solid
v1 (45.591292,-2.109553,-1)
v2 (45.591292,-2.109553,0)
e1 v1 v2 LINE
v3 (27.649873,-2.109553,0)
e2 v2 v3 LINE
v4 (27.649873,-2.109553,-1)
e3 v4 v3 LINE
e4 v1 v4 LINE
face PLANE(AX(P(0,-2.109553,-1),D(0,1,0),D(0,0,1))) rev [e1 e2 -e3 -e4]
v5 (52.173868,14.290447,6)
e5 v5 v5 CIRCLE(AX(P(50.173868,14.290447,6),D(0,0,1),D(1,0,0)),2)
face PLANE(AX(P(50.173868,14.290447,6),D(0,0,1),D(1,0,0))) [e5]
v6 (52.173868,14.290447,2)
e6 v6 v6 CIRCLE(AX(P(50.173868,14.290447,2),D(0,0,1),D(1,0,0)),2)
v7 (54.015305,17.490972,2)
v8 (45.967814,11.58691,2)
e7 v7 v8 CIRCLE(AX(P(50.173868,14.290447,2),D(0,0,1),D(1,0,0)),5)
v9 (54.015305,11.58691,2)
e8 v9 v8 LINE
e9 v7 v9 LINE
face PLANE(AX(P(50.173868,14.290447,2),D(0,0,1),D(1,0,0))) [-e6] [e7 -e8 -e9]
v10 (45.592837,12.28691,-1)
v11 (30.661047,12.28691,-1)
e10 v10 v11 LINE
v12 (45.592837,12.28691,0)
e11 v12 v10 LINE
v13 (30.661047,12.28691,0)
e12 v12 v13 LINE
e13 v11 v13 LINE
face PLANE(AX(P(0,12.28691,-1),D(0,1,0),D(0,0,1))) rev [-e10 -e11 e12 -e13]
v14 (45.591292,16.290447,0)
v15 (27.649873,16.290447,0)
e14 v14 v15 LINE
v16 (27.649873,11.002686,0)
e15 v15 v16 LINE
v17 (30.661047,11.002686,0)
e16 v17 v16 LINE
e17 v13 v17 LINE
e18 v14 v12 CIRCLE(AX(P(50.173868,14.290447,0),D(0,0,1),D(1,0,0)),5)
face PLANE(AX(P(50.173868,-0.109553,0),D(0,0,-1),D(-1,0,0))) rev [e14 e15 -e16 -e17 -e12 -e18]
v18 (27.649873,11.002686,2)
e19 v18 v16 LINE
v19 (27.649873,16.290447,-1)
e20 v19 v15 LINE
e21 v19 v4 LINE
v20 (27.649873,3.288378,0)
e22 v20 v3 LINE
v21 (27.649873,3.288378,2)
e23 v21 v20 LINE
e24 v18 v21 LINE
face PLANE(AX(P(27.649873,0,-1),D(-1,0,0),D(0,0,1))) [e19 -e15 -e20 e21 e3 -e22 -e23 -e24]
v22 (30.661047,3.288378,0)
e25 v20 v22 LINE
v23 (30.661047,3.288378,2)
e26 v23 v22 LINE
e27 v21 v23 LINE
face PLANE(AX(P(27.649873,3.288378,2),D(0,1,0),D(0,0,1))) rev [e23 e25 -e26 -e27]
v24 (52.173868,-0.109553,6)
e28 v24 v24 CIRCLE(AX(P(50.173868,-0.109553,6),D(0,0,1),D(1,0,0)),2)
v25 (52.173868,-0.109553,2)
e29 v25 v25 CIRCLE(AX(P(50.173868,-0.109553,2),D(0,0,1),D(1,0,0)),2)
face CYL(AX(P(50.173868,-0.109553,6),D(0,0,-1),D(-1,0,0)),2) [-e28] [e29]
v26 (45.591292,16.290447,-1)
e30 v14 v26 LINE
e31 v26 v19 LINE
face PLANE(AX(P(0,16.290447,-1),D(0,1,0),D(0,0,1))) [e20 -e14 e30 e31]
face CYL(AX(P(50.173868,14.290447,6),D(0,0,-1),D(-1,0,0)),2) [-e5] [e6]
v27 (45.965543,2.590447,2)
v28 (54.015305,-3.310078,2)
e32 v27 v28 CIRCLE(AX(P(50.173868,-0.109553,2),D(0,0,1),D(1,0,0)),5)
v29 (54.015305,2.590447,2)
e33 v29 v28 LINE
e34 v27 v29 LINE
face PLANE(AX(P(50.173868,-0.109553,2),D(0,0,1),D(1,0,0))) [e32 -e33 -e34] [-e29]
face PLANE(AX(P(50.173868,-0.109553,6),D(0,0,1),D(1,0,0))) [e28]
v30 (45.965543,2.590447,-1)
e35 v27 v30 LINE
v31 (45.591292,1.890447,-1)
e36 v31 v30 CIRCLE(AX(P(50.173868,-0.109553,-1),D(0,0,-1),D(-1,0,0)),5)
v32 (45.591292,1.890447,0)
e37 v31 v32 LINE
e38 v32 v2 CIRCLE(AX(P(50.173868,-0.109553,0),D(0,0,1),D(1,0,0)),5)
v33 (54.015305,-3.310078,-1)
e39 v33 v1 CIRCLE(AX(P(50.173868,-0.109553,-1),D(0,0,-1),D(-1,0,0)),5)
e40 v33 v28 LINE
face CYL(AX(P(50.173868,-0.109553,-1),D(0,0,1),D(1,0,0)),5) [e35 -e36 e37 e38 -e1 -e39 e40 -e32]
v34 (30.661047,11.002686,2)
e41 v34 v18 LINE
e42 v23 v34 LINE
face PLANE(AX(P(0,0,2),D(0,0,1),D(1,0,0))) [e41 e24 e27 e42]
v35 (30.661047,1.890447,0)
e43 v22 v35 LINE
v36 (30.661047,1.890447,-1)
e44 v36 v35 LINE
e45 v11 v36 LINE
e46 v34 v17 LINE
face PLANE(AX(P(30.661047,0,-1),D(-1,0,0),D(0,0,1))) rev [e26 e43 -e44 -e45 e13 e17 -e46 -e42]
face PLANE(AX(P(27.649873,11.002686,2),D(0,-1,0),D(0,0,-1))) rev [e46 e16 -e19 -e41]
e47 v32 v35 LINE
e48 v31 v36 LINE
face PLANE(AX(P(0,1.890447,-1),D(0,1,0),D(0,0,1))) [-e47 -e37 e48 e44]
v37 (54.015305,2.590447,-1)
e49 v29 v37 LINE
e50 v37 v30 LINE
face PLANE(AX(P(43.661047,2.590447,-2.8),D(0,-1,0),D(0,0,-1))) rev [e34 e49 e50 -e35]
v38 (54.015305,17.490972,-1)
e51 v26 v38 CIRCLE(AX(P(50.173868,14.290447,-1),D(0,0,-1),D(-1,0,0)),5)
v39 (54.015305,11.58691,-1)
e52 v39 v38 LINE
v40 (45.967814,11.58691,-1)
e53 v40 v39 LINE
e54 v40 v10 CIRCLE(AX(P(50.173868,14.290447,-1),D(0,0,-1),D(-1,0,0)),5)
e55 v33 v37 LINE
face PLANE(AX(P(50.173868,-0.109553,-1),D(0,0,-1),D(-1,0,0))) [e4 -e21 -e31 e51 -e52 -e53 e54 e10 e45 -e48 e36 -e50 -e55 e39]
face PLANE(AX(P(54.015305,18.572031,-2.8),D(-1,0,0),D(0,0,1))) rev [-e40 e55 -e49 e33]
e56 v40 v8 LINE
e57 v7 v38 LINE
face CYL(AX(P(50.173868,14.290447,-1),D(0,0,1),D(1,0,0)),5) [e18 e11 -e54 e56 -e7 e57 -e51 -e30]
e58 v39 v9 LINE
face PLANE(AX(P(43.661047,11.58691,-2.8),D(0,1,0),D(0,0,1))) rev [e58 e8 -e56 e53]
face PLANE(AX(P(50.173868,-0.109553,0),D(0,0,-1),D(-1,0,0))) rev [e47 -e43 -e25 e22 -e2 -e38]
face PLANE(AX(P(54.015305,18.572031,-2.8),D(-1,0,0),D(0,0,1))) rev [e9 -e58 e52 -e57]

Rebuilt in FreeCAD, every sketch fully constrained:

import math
import FreeCAD as App
import Part
import Sketcher
from FreeCAD import Vector

doc = App.newDocument("Part")
body = doc.addObject("PartDesign::Body", "Body")

# Sketch on XY plane
sketch1 = body.newObject("Sketcher::SketchObject", "Sketch")
sketch1.AttachmentSupport = (doc.getObject("XY_Plane"), [""])
sketch1.MapMode = "FlatFace"
sketch1.addGeometry(Part.Circle(Vector(50.2, 14.3, 0), Vector(0, 0, 1), 2), False)
sketch1.addConstraint(Sketcher.Constraint("Diameter", 0, 4.0))
sketch1.addConstraint(Sketcher.Constraint("DistanceX", -1, 1, 0, 3, 50.173868))
sketch1.addConstraint(Sketcher.Constraint("DistanceY", -1, 1, 0, 3, 14.290447))
pad1 = body.newObject("PartDesign::Pad", "Pad")
pad1.Profile = sketch1
pad1.Length = 6

# Sketch on XY plane
sketch2 = body.newObject("Sketcher::SketchObject", "Sketch001")
sketch2.AttachmentSupport = (doc.getObject("XY_Plane"), [""])
sketch2.MapMode = "FlatFace"
sketch2.addGeometry(Part.LineSegment(Vector(50.2, 16.3, 0), Vector(50.2, 12.3, 0)), False)
sketch2.addGeometry(Part.LineSegment(Vector(50.2, 12.3, 0), Vector(30.7, 12.3, 0)), False)
sketch2.addGeometry(Part.LineSegment(Vector(30.7, 12.3, 0), Vector(30.7, 1.9, 0)), False)
sketch2.addGeometry(Part.LineSegment(Vector(30.7, 1.9, 0), Vector(50.2, 1.9, 0)), False)
sketch2.addGeometry(Part.ArcOfCircle(Part.Circle(Vector(50.2, -0.1, 0), Vector(0, 0, 1), 2), math.radians(90), math.radians(180)), False)
sketch2.addGeometry(Part.ArcOfCircle(Part.Circle(Vector(50.2, -0.1, 0), Vector(0, 0, 1), 2), math.radians(180), math.radians(270)), False)
sketch2.addGeometry(Part.LineSegment(Vector(50.2, -2.1, 0), Vector(27.6, -2.1, 0)), False)
sketch2.addGeometry(Part.LineSegment(Vector(27.6, -2.1, 0), Vector(27.6, 1.9, 0)), False)
sketch2.addGeometry(Part.LineSegment(Vector(27.6, 1.9, 0), Vector(27.6, 12.3, 0)), False)
sketch2.addGeometry(Part.LineSegment(Vector(27.6, 12.3, 0), Vector(27.6, 16.3, 0)), False)
sketch2.addGeometry(Part.LineSegment(Vector(27.6, 16.3, 0), Vector(50.2, 16.3, 0)), False)
sketch2.addConstraint(Sketcher.Constraint("Coincident", 0, 2, 1, 1))
sketch2.addConstraint(Sketcher.Constraint("Coincident", 1, 2, 2, 1))
sketch2.addConstraint(Sketcher.Constraint("Coincident", 2, 2, 3, 1))
sketch2.addConstraint(Sketcher.Constraint("Tangent", 3, 2, 4, 1))
sketch2.addConstraint(Sketcher.Constraint("Tangent", 4, 2, 5, 1))
sketch2.addConstraint(Sketcher.Constraint("Tangent", 5, 2, 6, 1))
sketch2.addConstraint(Sketcher.Constraint("Coincident", 6, 2, 7, 1))
sketch2.addConstraint(Sketcher.Constraint("Coincident", 7, 2, 8, 1))
sketch2.addConstraint(Sketcher.Constraint("Coincident", 8, 2, 9, 1))
sketch2.addConstraint(Sketcher.Constraint("Coincident", 9, 2, 10, 1))
sketch2.addConstraint(Sketcher.Constraint("Coincident", 10, 2, 0, 1))
sketch2.addConstraint(Sketcher.Constraint("Vertical", 0))
sketch2.addConstraint(Sketcher.Constraint("Horizontal", 1))
sketch2.addConstraint(Sketcher.Constraint("Vertical", 2))
sketch2.addConstraint(Sketcher.Constraint("Horizontal", 3))
sketch2.addConstraint(Sketcher.Constraint("Horizontal", 6))
sketch2.addConstraint(Sketcher.Constraint("Vertical", 7))
sketch2.addConstraint(Sketcher.Constraint("Vertical", 8))
sketch2.addConstraint(Sketcher.Constraint("Vertical", 9))
sketch2.addConstraint(Sketcher.Constraint("Horizontal", 10))
sketch2.addConstraint(Sketcher.Constraint("Equal", 4, 5))
sketch2.addConstraint(Sketcher.Constraint("Horizontal", 5, 3, 4, 2))
sketch2.addConstraint(Sketcher.Constraint("Horizontal", 3, 2, 7, 2))
sketch2.addConstraint(Sketcher.Constraint("Horizontal", 1, 2, 8, 2))
sketch2.addConstraint(Sketcher.Constraint("Vertical", 5, 3, 0, 2))
sketch2.addConstraint(Sketcher.Constraint("Radius", 4, 2.0))
sketch2.addConstraint(Sketcher.Constraint("DistanceY", 7, 2, 9, 2, 14.4))
sketch2.addConstraint(Sketcher.Constraint("DistanceX", 1, 2, 1, 1, 19.51282))
sketch2.addConstraint(Sketcher.Constraint("DistanceX", 6, 2, 6, 1, 22.523995))
sketch2.addConstraint(Sketcher.Constraint("DistanceY", 0, 2, 0, 1, 4.003537))
sketch2.addConstraint(Sketcher.Constraint("DistanceY", -1, 1, 0, 2, 12.28691))
sketch2.addConstraint(Sketcher.Constraint("DistanceX", -1, 1, 4, 3, 50.173868))
pad2 = body.newObject("PartDesign::Pad", "Pad001")
pad2.Profile = sketch2
pad2.Length = 1
pad2.Reversed = True
body2 = doc.addObject("PartDesign::Body", "Body001")

# Sketch on XY plane
sketch3 = body2.newObject("Sketcher::SketchObject", "Sketch002")
sketch3.AttachmentSupport = (doc.getObject("XY_Plane001"), [""])
sketch3.MapMode = "FlatFace"
sketch3.addGeometry(Part.Circle(Vector(50.2, -0.1, 0), Vector(0, 0, 1), 2), False)
sketch3.addConstraint(Sketcher.Constraint("Diameter", 0, 4.0))
sketch3.addConstraint(Sketcher.Constraint("DistanceX", -1, 1, 0, 3, 50.173868))
sketch3.addConstraint(Sketcher.Constraint("DistanceY", 0, 3, -1, 1, 0.109553))
pad3 = body2.newObject("PartDesign::Pad", "Pad002")
pad3.Profile = sketch3
pad3.Length = 6
body.AllowCompound = True
doc.recompute()

boolean = body.newObject("PartDesign::Boolean", "Boolean")
boolean.Type = "Fuse"
boolean.addObjects([body2])

# Sketch on XY plane
sketch4 = body.newObject("Sketcher::SketchObject", "Sketch003")
sketch4.AttachmentSupport = (doc.getObject("XY_Plane"), [""])
sketch4.MapMode = "FlatFace"
sketch4.addGeometry(Part.Circle(Vector(50, 0, 0), Vector(0, 0, 1), 5), False)
sketch4.addGeometry(Part.Circle(Vector(50, 14, 0), Vector(0, 0, 1), 5), False)
sketch4.addConstraint(Sketcher.Constraint("Equal", 0, 1))
sketch4.addConstraint(Sketcher.Constraint("Vertical", 0, 3, 1, 3))
sketch4.addConstraint(Sketcher.Constraint("Diameter", 0, 10.0))
sketch4.addConstraint(Sketcher.Constraint("DistanceY", 0, 3, 1, 3, 14.4))
sketch4.addConstraint(Sketcher.Constraint("DistanceX", -1, 1, 0, 3, 50.173868))
sketch4.addConstraint(Sketcher.Constraint("DistanceY", 0, 3, -1, 1, 0.109553))
pad4 = body.newObject("PartDesign::Pad", "Pad003")
pad4.Profile = sketch4
pad4.Length = 1
pad4.Reversed = True

# Sketch on XY plane
sketch5 = body.newObject("Sketcher::SketchObject", "Sketch004")
sketch5.AttachmentSupport = (doc.getObject("XY_Plane"), [""])
sketch5.MapMode = "FlatFace"
sketch5.AttachmentOffset = App.Placement(Vector(0, 0, 2), App.Rotation())
sketch5.addGeometry(Part.Circle(Vector(50, 14, 0), Vector(0, 0, 1), 5), False)
sketch5.addGeometry(Part.Circle(Vector(50, 0, 0), Vector(0, 0, 1), 5), False)
sketch5.addConstraint(Sketcher.Constraint("Equal", 0, 1))
sketch5.addConstraint(Sketcher.Constraint("Vertical", 0, 3, 1, 3))
sketch5.addConstraint(Sketcher.Constraint("Diameter", 0, 10.0))
sketch5.addConstraint(Sketcher.Constraint("DistanceY", 1, 3, 0, 3, 14.4))
sketch5.addConstraint(Sketcher.Constraint("DistanceX", -1, 1, 0, 3, 50.173868))
sketch5.addConstraint(Sketcher.Constraint("DistanceY", -1, 1, 0, 3, 14.290447))
pad5 = body.newObject("PartDesign::Pad", "Pad004")
pad5.Profile = sketch5
pad5.Length = 2
pad5.Reversed = True

# Sketch on XY plane
sketch6 = body.newObject("Sketcher::SketchObject", "Sketch005")
sketch6.AttachmentSupport = (doc.getObject("XY_Plane"), [""])
sketch6.MapMode = "FlatFace"
sketch6.AttachmentOffset = App.Placement(Vector(0, 0, 2), App.Rotation())
sketch6.addGeometry(Part.LineSegment(Vector(44, 12, 0), Vector(44, 3, 0)), False)
sketch6.addGeometry(Part.LineSegment(Vector(44, 3, 0), Vector(57, 3, 0)), False)
sketch6.addGeometry(Part.LineSegment(Vector(57, 3, 0), Vector(57, 12, 0)), False)
sketch6.addGeometry(Part.LineSegment(Vector(57, 12, 0), Vector(44, 12, 0)), False)
sketch6.addConstraint(Sketcher.Constraint("Coincident", 0, 2, 1, 1))
sketch6.addConstraint(Sketcher.Constraint("Coincident", 1, 2, 2, 1))
sketch6.addConstraint(Sketcher.Constraint("Coincident", 2, 2, 3, 1))
sketch6.addConstraint(Sketcher.Constraint("Coincident", 3, 2, 0, 1))
sketch6.addConstraint(Sketcher.Constraint("Vertical", 0))
sketch6.addConstraint(Sketcher.Constraint("Horizontal", 1))
sketch6.addConstraint(Sketcher.Constraint("Vertical", 2))
sketch6.addConstraint(Sketcher.Constraint("Horizontal", 3))
sketch6.addConstraint(Sketcher.Constraint("DistanceX", 1, 1, 1, 2, 13.0))
sketch6.addConstraint(Sketcher.Constraint("DistanceY", 0, 2, 0, 1, 8.996463))
sketch6.addConstraint(Sketcher.Constraint("DistanceY", -1, 1, 2, 2, 11.58691))
sketch6.addConstraint(Sketcher.Constraint("DistanceX", -1, 1, 0, 2, 43.661047))
pocket1 = body.newObject("PartDesign::Pocket", "Pocket")
pocket1.Profile = sketch6
pocket1.Length = 4.8

# Sketch on XY plane
sketch7 = body.newObject("Sketcher::SketchObject", "Sketch006")
sketch7.AttachmentSupport = (doc.getObject("XY_Plane"), [""])
sketch7.MapMode = "FlatFace"
sketch7.AttachmentOffset = App.Placement(Vector(0, 0, 2), App.Rotation())
sketch7.addGeometry(Part.LineSegment(Vector(54, 18.6, 0), Vector(54, -4.3, 0)), False)
sketch7.addGeometry(Part.LineSegment(Vector(54, -4.3, 0), Vector(56, -4.3, 0)), False)
sketch7.addGeometry(Part.LineSegment(Vector(56, -4.3, 0), Vector(56, 18.6, 0)), False)
sketch7.addGeometry(Part.LineSegment(Vector(56, 18.6, 0), Vector(54, 18.6, 0)), False)
sketch7.addConstraint(Sketcher.Constraint("Coincident", 0, 2, 1, 1))
sketch7.addConstraint(Sketcher.Constraint("Coincident", 1, 2, 2, 1))
sketch7.addConstraint(Sketcher.Constraint("Coincident", 2, 2, 3, 1))
sketch7.addConstraint(Sketcher.Constraint("Coincident", 3, 2, 0, 1))
sketch7.addConstraint(Sketcher.Constraint("Vertical", 0))
sketch7.addConstraint(Sketcher.Constraint("Horizontal", 1))
sketch7.addConstraint(Sketcher.Constraint("Vertical", 2))
sketch7.addConstraint(Sketcher.Constraint("Horizontal", 3))
sketch7.addConstraint(Sketcher.Constraint("DistanceY", 0, 2, 0, 1, 22.861741))
sketch7.addConstraint(Sketcher.Constraint("DistanceX", 1, 1, 1, 2, 2.020514))
sketch7.addConstraint(Sketcher.Constraint("DistanceY", 0, 2, -1, 1, 4.28971))
sketch7.addConstraint(Sketcher.Constraint("DistanceX", -1, 1, 1, 2, 56.035819))
pocket2 = body.newObject("PartDesign::Pocket", "Pocket001")
pocket2.Profile = sketch7
pocket2.Length = 4.8

# Sketch on XY plane
sketch8 = body.newObject("Sketcher::SketchObject", "Sketch007")
sketch8.AttachmentSupport = (doc.getObject("XY_Plane"), [""])
sketch8.MapMode = "FlatFace"
sketch8.addGeometry(Part.LineSegment(Vector(27.6, 11, 0), Vector(27.6, 3.3, 0)), False)
sketch8.addGeometry(Part.LineSegment(Vector(27.6, 3.3, 0), Vector(30.7, 3.3, 0)), False)
sketch8.addGeometry(Part.LineSegment(Vector(30.7, 3.3, 0), Vector(30.7, 11, 0)), False)
sketch8.addGeometry(Part.LineSegment(Vector(30.7, 11, 0), Vector(27.6, 11, 0)), False)
sketch8.addConstraint(Sketcher.Constraint("Coincident", 0, 2, 1, 1))
sketch8.addConstraint(Sketcher.Constraint("Coincident", 1, 2, 2, 1))
sketch8.addConstraint(Sketcher.Constraint("Coincident", 2, 2, 3, 1))
sketch8.addConstraint(Sketcher.Constraint("Coincident", 3, 2, 0, 1))
sketch8.addConstraint(Sketcher.Constraint("Vertical", 0))
sketch8.addConstraint(Sketcher.Constraint("Horizontal", 1))
sketch8.addConstraint(Sketcher.Constraint("Vertical", 2))
sketch8.addConstraint(Sketcher.Constraint("Horizontal", 3))
sketch8.addConstraint(Sketcher.Constraint("DistanceY", 0, 2, 0, 1, 7.714309))
sketch8.addConstraint(Sketcher.Constraint("DistanceX", 1, 1, 1, 2, 3.011174))
sketch8.addConstraint(Sketcher.Constraint("DistanceX", -1, 1, 0, 2, 27.649873))
sketch8.addConstraint(Sketcher.Constraint("DistanceY", -1, 1, 0, 2, 3.288378))
pad6 = body.newObject("PartDesign::Pad", "Pad005")
pad6.Profile = sketch8
pad6.Length = 2

doc.recompute()
